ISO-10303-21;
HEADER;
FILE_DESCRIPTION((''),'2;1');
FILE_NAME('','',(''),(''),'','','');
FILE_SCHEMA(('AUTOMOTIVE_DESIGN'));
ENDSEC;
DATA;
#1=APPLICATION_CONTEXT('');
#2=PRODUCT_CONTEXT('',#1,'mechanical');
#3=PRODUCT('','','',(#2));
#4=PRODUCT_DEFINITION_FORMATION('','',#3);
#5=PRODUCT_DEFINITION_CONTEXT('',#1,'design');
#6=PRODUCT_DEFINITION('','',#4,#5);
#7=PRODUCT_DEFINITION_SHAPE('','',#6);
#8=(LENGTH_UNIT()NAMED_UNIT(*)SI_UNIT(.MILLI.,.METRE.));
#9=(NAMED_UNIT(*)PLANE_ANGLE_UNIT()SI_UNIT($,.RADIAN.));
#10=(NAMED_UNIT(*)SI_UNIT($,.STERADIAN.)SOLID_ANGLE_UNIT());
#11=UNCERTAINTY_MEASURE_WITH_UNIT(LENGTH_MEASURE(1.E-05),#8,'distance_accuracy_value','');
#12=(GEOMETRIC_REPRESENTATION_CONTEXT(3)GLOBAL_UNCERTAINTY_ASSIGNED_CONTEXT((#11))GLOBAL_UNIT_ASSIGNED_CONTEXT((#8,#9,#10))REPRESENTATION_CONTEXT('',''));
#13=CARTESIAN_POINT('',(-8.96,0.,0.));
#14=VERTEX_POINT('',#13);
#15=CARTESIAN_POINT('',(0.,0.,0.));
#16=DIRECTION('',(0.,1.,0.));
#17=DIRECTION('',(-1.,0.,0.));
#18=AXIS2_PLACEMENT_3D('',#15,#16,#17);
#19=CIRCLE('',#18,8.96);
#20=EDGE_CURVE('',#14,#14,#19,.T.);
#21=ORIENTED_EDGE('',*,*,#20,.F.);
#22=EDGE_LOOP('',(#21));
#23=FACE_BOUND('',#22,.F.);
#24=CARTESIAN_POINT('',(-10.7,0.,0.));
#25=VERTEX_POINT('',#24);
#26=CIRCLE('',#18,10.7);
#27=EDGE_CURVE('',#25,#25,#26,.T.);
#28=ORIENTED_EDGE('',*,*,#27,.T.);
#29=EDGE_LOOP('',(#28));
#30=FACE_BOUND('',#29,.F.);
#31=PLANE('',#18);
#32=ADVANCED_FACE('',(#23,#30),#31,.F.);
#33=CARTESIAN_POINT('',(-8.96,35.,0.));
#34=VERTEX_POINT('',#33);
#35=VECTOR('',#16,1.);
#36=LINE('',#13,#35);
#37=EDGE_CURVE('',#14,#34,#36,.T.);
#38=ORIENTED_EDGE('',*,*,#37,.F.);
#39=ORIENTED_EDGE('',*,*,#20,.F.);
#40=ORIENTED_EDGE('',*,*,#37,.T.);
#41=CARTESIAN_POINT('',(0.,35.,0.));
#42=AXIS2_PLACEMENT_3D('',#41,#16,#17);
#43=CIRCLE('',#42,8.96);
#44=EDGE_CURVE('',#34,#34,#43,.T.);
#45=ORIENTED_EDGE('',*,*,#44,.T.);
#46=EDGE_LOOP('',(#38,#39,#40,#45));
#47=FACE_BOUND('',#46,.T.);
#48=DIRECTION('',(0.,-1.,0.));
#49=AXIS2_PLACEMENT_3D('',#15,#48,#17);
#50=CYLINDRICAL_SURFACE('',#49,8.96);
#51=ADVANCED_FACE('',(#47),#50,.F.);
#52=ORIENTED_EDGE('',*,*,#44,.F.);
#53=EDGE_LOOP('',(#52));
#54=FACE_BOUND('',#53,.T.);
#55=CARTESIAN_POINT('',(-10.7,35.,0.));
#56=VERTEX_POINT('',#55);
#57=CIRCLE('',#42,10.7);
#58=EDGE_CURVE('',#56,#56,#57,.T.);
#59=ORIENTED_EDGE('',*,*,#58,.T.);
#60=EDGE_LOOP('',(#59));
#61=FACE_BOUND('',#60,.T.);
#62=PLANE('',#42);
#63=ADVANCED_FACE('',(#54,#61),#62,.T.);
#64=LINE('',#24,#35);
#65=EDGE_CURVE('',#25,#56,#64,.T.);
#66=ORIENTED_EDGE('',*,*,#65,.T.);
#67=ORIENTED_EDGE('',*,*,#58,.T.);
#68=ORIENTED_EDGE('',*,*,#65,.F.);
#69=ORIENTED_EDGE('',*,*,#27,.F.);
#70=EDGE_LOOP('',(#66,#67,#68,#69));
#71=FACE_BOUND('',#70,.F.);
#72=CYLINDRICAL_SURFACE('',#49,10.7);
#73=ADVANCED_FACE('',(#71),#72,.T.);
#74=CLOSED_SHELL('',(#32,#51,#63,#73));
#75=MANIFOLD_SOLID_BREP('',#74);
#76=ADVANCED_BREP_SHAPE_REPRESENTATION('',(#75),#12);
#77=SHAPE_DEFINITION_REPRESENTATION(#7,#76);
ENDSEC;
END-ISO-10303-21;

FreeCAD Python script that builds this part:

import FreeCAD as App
import Part
import Sketcher

V = App.Vector
Q = App.Units.Quantity

doc = App.newDocument("Part")
params = doc.addObject("Spreadsheet::Sheet", "Params")
for row, (alias, value) in enumerate([
    ("sketch1_diameter", "21.4 mm"),
    ("sketch1_diameter2", "17.92 mm"),
    ("pad1_length", "35 mm"),
], start=1):
    params.set(f"A{row}", alias)
    params.set(f"B{row}", "=" + value)
    params.setAlias(f"B{row}", alias)

body = doc.addObject("PartDesign::Body", "Body")

# Sketch on XZ plane
sketch1 = body.newObject("Sketcher::SketchObject", "Sketch")
sketch1.AttachmentSupport = (doc.getObject("XZ_Plane"), [""])
sketch1.MapMode = "FlatFace"
sketch1.addGeometry(Part.Circle(V(0, 0, 0), V(0, 0, 1), 11), False)
sketch1.addGeometry(Part.Circle(V(0, 0, 0), V(0, 0, 1), 9), False)
sketch1.addConstraint(Sketcher.Constraint("Coincident", 0, 3, -1, 1))
sketch1.addConstraint(Sketcher.Constraint("Coincident", 1, 3, -1, 1))
sketch1.addConstraint(Sketcher.Constraint("Diameter", 0, Q("21.4 mm")))
sketch1.addConstraint(Sketcher.Constraint("Diameter", 1, Q("17.92 mm")))
sketch1.setExpression("Constraints[2]", "Params.sketch1_diameter")
sketch1.setExpression("Constraints[3]", "Params.sketch1_diameter2")
pad1 = body.newObject("PartDesign::Pad", "Pad")
pad1.Profile = sketch1
pad1.setExpression("Length", "Params.pad1_length")
pad1.Reversed = True

doc.recompute()
